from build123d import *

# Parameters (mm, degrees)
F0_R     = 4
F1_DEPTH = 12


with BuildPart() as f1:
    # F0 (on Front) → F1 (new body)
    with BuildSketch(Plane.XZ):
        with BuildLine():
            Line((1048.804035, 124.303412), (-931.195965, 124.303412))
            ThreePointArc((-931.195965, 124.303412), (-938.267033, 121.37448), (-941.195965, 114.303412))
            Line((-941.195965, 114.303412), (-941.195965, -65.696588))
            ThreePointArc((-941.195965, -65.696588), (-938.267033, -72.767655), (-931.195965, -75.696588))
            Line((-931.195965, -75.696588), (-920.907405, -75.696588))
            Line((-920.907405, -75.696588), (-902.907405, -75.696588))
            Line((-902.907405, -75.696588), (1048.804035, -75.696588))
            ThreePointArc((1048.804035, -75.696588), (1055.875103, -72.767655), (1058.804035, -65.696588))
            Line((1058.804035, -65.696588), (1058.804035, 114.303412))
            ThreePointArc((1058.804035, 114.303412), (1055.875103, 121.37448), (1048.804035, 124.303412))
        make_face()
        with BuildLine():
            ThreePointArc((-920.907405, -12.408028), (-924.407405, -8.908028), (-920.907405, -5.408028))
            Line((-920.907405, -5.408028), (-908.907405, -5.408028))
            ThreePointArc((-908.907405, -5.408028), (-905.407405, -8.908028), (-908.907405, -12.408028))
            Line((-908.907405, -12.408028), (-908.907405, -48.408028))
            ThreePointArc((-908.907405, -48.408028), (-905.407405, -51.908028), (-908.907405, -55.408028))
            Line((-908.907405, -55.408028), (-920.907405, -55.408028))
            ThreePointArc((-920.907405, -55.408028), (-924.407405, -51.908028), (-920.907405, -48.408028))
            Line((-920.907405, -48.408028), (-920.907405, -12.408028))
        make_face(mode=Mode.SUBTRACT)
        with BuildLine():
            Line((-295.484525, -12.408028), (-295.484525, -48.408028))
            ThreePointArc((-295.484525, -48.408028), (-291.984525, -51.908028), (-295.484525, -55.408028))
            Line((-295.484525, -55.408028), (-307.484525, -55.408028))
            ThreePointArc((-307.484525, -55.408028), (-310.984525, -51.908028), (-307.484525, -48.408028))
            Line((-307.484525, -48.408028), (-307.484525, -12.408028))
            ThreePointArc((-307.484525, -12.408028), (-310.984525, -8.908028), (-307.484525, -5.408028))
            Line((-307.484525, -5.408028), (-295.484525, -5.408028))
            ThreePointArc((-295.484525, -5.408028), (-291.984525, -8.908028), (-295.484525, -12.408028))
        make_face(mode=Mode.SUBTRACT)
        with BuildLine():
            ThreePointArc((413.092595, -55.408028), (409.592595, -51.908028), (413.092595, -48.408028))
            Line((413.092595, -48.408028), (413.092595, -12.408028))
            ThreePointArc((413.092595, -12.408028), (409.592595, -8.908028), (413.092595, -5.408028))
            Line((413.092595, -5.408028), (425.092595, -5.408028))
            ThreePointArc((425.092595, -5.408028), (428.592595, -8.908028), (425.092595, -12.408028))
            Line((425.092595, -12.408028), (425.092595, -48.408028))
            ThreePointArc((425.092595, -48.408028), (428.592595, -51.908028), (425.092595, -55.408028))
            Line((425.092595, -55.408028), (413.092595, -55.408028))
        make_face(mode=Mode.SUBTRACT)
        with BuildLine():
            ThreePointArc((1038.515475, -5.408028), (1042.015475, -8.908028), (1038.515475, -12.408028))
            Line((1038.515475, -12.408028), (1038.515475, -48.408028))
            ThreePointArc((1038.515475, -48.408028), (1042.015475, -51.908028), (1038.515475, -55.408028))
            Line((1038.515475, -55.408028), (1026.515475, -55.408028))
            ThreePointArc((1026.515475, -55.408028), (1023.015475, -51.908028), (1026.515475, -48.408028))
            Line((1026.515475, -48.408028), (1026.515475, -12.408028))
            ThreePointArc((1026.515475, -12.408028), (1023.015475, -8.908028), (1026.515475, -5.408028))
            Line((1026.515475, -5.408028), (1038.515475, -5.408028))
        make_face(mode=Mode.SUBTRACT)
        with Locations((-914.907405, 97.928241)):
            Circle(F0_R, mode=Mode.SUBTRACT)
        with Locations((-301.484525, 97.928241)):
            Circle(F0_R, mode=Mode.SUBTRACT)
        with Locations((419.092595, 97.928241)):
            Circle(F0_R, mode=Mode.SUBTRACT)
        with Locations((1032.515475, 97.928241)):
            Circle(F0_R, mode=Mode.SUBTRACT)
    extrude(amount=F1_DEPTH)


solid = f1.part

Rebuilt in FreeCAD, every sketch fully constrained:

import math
import FreeCAD as App
import Part
import Sketcher

doc = App.newDocument("Part")
body = doc.addObject("PartDesign::Body", "Body")

# Sketch on XZ plane
sketch1 = body.newObject("Sketcher::SketchObject", "Sketch")
sketch1.AttachmentSupport = (doc.getObject("XZ_Plane"), [""])
sketch1.MapMode = "FlatFace"
sketch1.addGeometry([
    Part.LineSegment(App.Vector(1048.804035, 124.303412, 0), App.Vector(-931.195965, 124.303412, 0)),  # 0
    Part.ArcOfCircle(Part.Circle(App.Vector(-931.195966, 114.303413, 0), App.Vector(0, 0, 1), 9.999999), math.radians(89.999996), math.radians(180.000004)),  # 1
    Part.LineSegment(App.Vector(-941.195965, 114.303412, 0), App.Vector(-941.195965, -65.696588, 0)),  # 2
    Part.ArcOfCircle(Part.Circle(App.Vector(-931.195964, -65.696587, 0), App.Vector(0, 0, 1), 10.000001), math.radians(-179.999994), math.radians(-90.000006)),  # 3
    Part.LineSegment(App.Vector(-931.195965, -75.696588, 0), App.Vector(1048.804035, -75.696588, 0)),  # 4
    Part.ArcOfCircle(Part.Circle(App.Vector(1048.804034, -65.696587, 0), App.Vector(0, 0, 1), 10.000001), math.radians(-89.999994), math.radians(-0.000006)),  # 5
    Part.LineSegment(App.Vector(1058.804035, -65.696588, 0), App.Vector(1058.804035, 114.303412, 0)),  # 6
    Part.ArcOfCircle(Part.Circle(App.Vector(1048.804036, 114.303413, 0), App.Vector(0, 0, 1), 9.999999), math.radians(-0.000004), math.radians(90.000004)),  # 7
    Part.LineSegment(App.Vector(-920.907405, -48.408028, 0), App.Vector(-920.907405, -12.408028, 0)),  # 8
    Part.ArcOfCircle(Part.Circle(App.Vector(-920.907405, -8.908028, 0), App.Vector(0, 0, 1), 3.5), math.radians(90), math.radians(270)),  # 9
    Part.LineSegment(App.Vector(-920.907405, -5.408028, 0), App.Vector(-908.907405, -5.408028, 0)),  # 10
    Part.ArcOfCircle(Part.Circle(App.Vector(-908.907405, -8.908028, 0), App.Vector(0, 0, 1), 3.5), math.radians(-90), math.radians(90)),  # 11
    Part.LineSegment(App.Vector(-908.907405, -12.408028, 0), App.Vector(-908.907405, -48.408028, 0)),  # 12
    Part.ArcOfCircle(Part.Circle(App.Vector(-908.907405, -51.908028, 0), App.Vector(0, 0, 1), 3.5), math.radians(-90), math.radians(90)),  # 13
    Part.LineSegment(App.Vector(-908.907405, -55.408028, 0), App.Vector(-920.907405, -55.408028, 0)),  # 14
    Part.ArcOfCircle(Part.Circle(App.Vector(-920.907405, -51.908028, 0), App.Vector(0, 0, 1), 3.5), math.radians(90), math.radians(270)),  # 15
    Part.ArcOfCircle(Part.Circle(App.Vector(-295.484525, -8.908028, 0), App.Vector(0, 0, 1), 3.5), math.radians(-90), math.radians(90)),  # 16
    Part.LineSegment(App.Vector(-295.484525, -12.408028, 0), App.Vector(-295.484525, -48.408028, 0)),  # 17
    Part.ArcOfCircle(Part.Circle(App.Vector(-295.484525, -51.908028, 0), App.Vector(0, 0, 1), 3.5), math.radians(-90), math.radians(90)),  # 18
    Part.LineSegment(App.Vector(-295.484525, -55.408028, 0), App.Vector(-307.484525, -55.408028, 0)),  # 19
    Part.ArcOfCircle(Part.Circle(App.Vector(-307.484525, -51.908028, 0), App.Vector(0, 0, 1), 3.5), math.radians(90), math.radians(270)),  # 20
    Part.LineSegment(App.Vector(-307.484525, -48.408028, 0), App.Vector(-307.484525, -12.408028, 0)),  # 21
    Part.ArcOfCircle(Part.Circle(App.Vector(-307.484525, -8.908028, 0), App.Vector(0, 0, 1), 3.5), math.radians(90), math.radians(270)),  # 22
    Part.LineSegment(App.Vector(-307.484525, -5.408028, 0), App.Vector(-295.484525, -5.408028, 0)),  # 23
    Part.LineSegment(App.Vector(425.092595, -55.408028, 0), App.Vector(413.092595, -55.408028, 0)),  # 24
    Part.ArcOfCircle(Part.Circle(App.Vector(413.092595, -51.908028, 0), App.Vector(0, 0, 1), 3.5), math.radians(90), math.radians(270)),  # 25
    Part.LineSegment(App.Vector(413.092595, -48.408028, 0), App.Vector(413.092595, -12.408028, 0)),  # 26
    Part.ArcOfCircle(Part.Circle(App.Vector(413.092595, -8.908028, 0), App.Vector(0, 0, 1), 3.5), math.radians(90), math.radians(270)),  # 27
    Part.LineSegment(App.Vector(413.092595, -5.408028, 0), App.Vector(425.092595, -5.408028, 0)),  # 28
    Part.ArcOfCircle(Part.Circle(App.Vector(425.092595, -8.908028, 0), App.Vector(0, 0, 1), 3.5), math.radians(-90), math.radians(90)),  # 29
    Part.LineSegment(App.Vector(425.092595, -12.408028, 0), App.Vector(425.092595, -48.408028, 0)),  # 30
    Part.ArcOfCircle(Part.Circle(App.Vector(425.092595, -51.908028, 0), App.Vector(0, 0, 1), 3.5), math.radians(-90), math.radians(90)),  # 31
    Part.LineSegment(App.Vector(1026.515475, -5.408028, 0), App.Vector(1038.515475, -5.408028, 0)),  # 32
    Part.ArcOfCircle(Part.Circle(App.Vector(1038.515475, -8.908028, 0), App.Vector(0, 0, 1), 3.5), math.radians(-90), math.radians(90)),  # 33
    Part.LineSegment(App.Vector(1038.515475, -12.408028, 0), App.Vector(1038.515475, -48.408028, 0)),  # 34
    Part.ArcOfCircle(Part.Circle(App.Vector(1038.515475, -51.908028, 0), App.Vector(0, 0, 1), 3.5), math.radians(-90), math.radians(90)),  # 35
    Part.LineSegment(App.Vector(1038.515475, -55.408028, 0), App.Vector(1026.515475, -55.408028, 0)),  # 36
    Part.ArcOfCircle(Part.Circle(App.Vector(1026.515475, -51.908028, 0), App.Vector(0, 0, 1), 3.5), math.radians(90), math.radians(270)),  # 37
    Part.LineSegment(App.Vector(1026.515475, -48.408028, 0), App.Vector(1026.515475, -12.408028, 0)),  # 38
    Part.ArcOfCircle(Part.Circle(App.Vector(1026.515475, -8.908028, 0), App.Vector(0, 0, 1), 3.5), math.radians(90), math.radians(270)),  # 39
    Part.Circle(App.Vector(-914.907405, 97.928241, 0), App.Vector(0, 0, 1), 4),  # 40
    Part.Circle(App.Vector(-301.484525, 97.928241, 0), App.Vector(0, 0, 1), 4),  # 41
    Part.Circle(App.Vector(419.092595, 97.928241, 0), App.Vector(0, 0, 1), 4),  # 42
    Part.Circle(App.Vector(1032.515475, 97.928241, 0), App.Vector(0, 0, 1), 4),  # 43
], False)
sketch1.addConstraint([
    Sketcher.Constraint("Tangent", 0, 2, 1, 1),
    Sketcher.Constraint("Tangent", 1, 2, 2, 1),
    Sketcher.Constraint("Tangent", 2, 2, 3, 1),
    Sketcher.Constraint("Tangent", 3, 2, 4, 1),
    Sketcher.Constraint("Tangent", 4, 2, 5, 1),
    Sketcher.Constraint("Tangent", 5, 2, 6, 1),
    Sketcher.Constraint("Tangent", 6, 2, 7, 1),
    Sketcher.Constraint("Tangent", 7, 2, 0, 1),
    Sketcher.Constraint("Coincident", 8, 2, 9, 2),
    Sketcher.Constraint("Tangent", 9, 1, 10, 1),
    Sketcher.Constraint("Tangent", 10, 2, 11, 2),
    Sketcher.Constraint("Coincident", 11, 1, 12, 1),
    Sketcher.Constraint("Coincident", 12, 2, 13, 2),
    Sketcher.Constraint("Tangent", 13, 1, 14, 1),
    Sketcher.Constraint("Tangent", 14, 2, 15, 2),
    Sketcher.Constraint("Coincident", 15, 1, 8, 1),
    Sketcher.Constraint("Coincident", 16, 1, 17, 1),
    Sketcher.Constraint("Coincident", 17, 2, 18, 2),
    Sketcher.Constraint("Tangent", 18, 1, 19, 1),
    Sketcher.Constraint("Tangent", 19, 2, 20, 2),
    Sketcher.Constraint("Coincident", 20, 1, 21, 1),
    Sketcher.Constraint("Coincident", 21, 2, 22, 2),
    Sketcher.Constraint("Tangent", 22, 1, 23, 1),
    Sketcher.Constraint("Tangent", 23, 2, 16, 2),
    Sketcher.Constraint("Tangent", 24, 2, 25, 2),
    Sketcher.Constraint("Coincident", 25, 1, 26, 1),
    Sketcher.Constraint("Coincident", 26, 2, 27, 2),
    Sketcher.Constraint("Tangent", 27, 1, 28, 1),
    Sketcher.Constraint("Tangent", 28, 2, 29, 2),
    Sketcher.Constraint("Coincident", 29, 1, 30, 1),
    Sketcher.Constraint("Coincident", 30, 2, 31, 2),
    Sketcher.Constraint("Tangent", 31, 1, 24, 1),
    Sketcher.Constraint("Tangent", 32, 2, 33, 2),
    Sketcher.Constraint("Coincident", 33, 1, 34, 1),
    Sketcher.Constraint("Coincident", 34, 2, 35, 2),
    Sketcher.Constraint("Tangent", 35, 1, 36, 1),
    Sketcher.Constraint("Tangent", 36, 2, 37, 2),
    Sketcher.Constraint("Coincident", 37, 1, 38, 1),
    Sketcher.Constraint("Coincident", 38, 2, 39, 2),
    Sketcher.Constraint("Tangent", 39, 1, 32, 1),
    Sketcher.Constraint("Horizontal", 0),
    Sketcher.Constraint("Vertical", 2),
    Sketcher.Constraint("Horizontal", 4),
    Sketcher.Constraint("Vertical", 6),
    Sketcher.Constraint("Vertical", 8),
    Sketcher.Constraint("Horizontal", 10),
    Sketcher.Constraint("Vertical", 12),
    Sketcher.Constraint("Horizontal", 14),
    Sketcher.Constraint("Vertical", 17),
    Sketcher.Constraint("Horizontal", 19),
    Sketcher.Constraint("Vertical", 21),
    Sketcher.Constraint("Horizontal", 23),
    Sketcher.Constraint("Horizontal", 24),
    Sketcher.Constraint("Vertical", 26),
    Sketcher.Constraint("Horizontal", 28),
    Sketcher.Constraint("Vertical", 30),
    Sketcher.Constraint("Horizontal", 32),
    Sketcher.Constraint("Vertical", 34),
    Sketcher.Constraint("Horizontal", 36),
    Sketcher.Constraint("Vertical", 38),
    Sketcher.Constraint("Equal", 1, 3),
    Sketcher.Constraint("Equal", 3, 5),
    Sketcher.Constraint("Equal", 5, 7),
    Sketcher.Constraint("Equal", 9, 11),
    Sketcher.Constraint("Equal", 11, 13),
    Sketcher.Constraint("Equal", 13, 15),
    Sketcher.Constraint("Equal", 15, 16),
    Sketcher.Constraint("Equal", 16, 18),
    Sketcher.Constraint("Equal", 18, 20),
    Sketcher.Constraint("Equal", 20, 22),
    Sketcher.Constraint("Equal", 22, 25),
    Sketcher.Constraint("Equal", 25, 27),
    Sketcher.Constraint("Equal", 27, 29),
    Sketcher.Constraint("Equal", 29, 31),
    Sketcher.Constraint("Equal", 31, 33),
    Sketcher.Constraint("Equal", 33, 35),
    Sketcher.Constraint("Equal", 35, 37),
    Sketcher.Constraint("Equal", 37, 39),
    Sketcher.Constraint("Equal", 40, 41),
    Sketcher.Constraint("Equal", 41, 42),
    Sketcher.Constraint("Equal", 42, 43),
    Sketcher.Constraint("Horizontal", 11, 3, 16, 3),
    Sketcher.Constraint("Horizontal", 15, 3, 18, 3),
    Sketcher.Constraint("Horizontal", 20, 3, 25, 3),
    Sketcher.Constraint("Horizontal", 22, 3, 27, 3),
    Sketcher.Constraint("Horizontal", 29, 3, 33, 3),
    Sketcher.Constraint("Horizontal", 31, 3, 35, 3),
    Sketcher.Constraint("Horizontal", 40, 3, 41, 3),
    Sketcher.Constraint("Horizontal", 41, 3, 42, 3),
    Sketcher.Constraint("Horizontal", 42, 3, 43, 3),
    Sketcher.Constraint("Vertical", 11, 3, 13, 3),
    Sketcher.Constraint("Vertical", 9, 3, 15, 3),
    Sketcher.Constraint("Vertical", 16, 3, 18, 3),
    Sketcher.Constraint("Vertical", 20, 3, 22, 3),
    Sketcher.Constraint("Vertical", 25, 3, 27, 3),
    Sketcher.Constraint("Vertical", 29, 3, 31, 3),
    Sketcher.Constraint("Vertical", 33, 3, 35, 3),
    Sketcher.Constraint("Vertical", 37, 3, 39, 3),
    Sketcher.Constraint("Vertical", 15, 3, 8, 2),
    Sketcher.Constraint("Vertical", 10, 2, 11, 1),
    Sketcher.Constraint("Vertical", 18, 3, 16, 1),
    Sketcher.Constraint("Vertical", 19, 2, 20, 1),
    Sketcher.Constraint("Vertical", 24, 2, 25, 1),
    Sketcher.Constraint("Vertical", 28, 2, 29, 1),
    Sketcher.Constraint("Vertical", 32, 2, 33, 1),
    Sketcher.Constraint("Vertical", 36, 2, 37, 1),
    Sketcher.Constraint("Equal", 14, 19),
    Sketcher.Constraint("Equal", 23, 24),
    Sketcher.Constraint("Equal", 28, 32),
    Sketcher.Constraint("Diameter", 40, 8.0),
    Sketcher.Constraint("Radius", 1, 9.999999),
    Sketcher.Constraint("Radius", 9, 3.5),
    Sketcher.Constraint("DistanceX", 0, 2, 0, 1, 1980.0),
    Sketcher.Constraint("DistanceX", 10, 1, 10, 2, 12.0),
    Sketcher.Constraint("DistanceY", 2, 2, 2, 1, 180.0),
    Sketcher.Constraint("DistanceY", 8, 1, 8, 2, 36.0),
    Sketcher.Constraint("DistanceY", 13, 3, -1, 1, 51.908028),
    Sketcher.Constraint("DistanceY", -1, 1, 40, 3, 97.928241),
    Sketcher.Constraint("DistanceY", -1, 1, 0, 2, 124.303412),
    Sketcher.Constraint("DistanceX", 1, 3, -1, 1, 931.195966),
    Sketcher.Constraint("DistanceX", 9, 3, -1, 1, 920.907405),
    Sketcher.Constraint("DistanceX", 16, 3, -1, 1, 295.484525),
    Sketcher.Constraint("DistanceX", -1, 1, 25, 3, 413.092595),
    Sketcher.Constraint("DistanceX", -1, 1, 33, 3, 1038.515475),
    Sketcher.Constraint("DistanceX", 40, 3, -1, 1, 914.907405),
    Sketcher.Constraint("DistanceX", 41, 3, -1, 1, 301.484525),
    Sketcher.Constraint("DistanceX", -1, 1, 42, 3, 419.092595),
    Sketcher.Constraint("DistanceX", -1, 1, 43, 3, 1032.515475),
])
pad1 = body.newObject("PartDesign::Pad", "Pad")
pad1.Profile = sketch1
pad1.Length = 12

doc.recompute()
